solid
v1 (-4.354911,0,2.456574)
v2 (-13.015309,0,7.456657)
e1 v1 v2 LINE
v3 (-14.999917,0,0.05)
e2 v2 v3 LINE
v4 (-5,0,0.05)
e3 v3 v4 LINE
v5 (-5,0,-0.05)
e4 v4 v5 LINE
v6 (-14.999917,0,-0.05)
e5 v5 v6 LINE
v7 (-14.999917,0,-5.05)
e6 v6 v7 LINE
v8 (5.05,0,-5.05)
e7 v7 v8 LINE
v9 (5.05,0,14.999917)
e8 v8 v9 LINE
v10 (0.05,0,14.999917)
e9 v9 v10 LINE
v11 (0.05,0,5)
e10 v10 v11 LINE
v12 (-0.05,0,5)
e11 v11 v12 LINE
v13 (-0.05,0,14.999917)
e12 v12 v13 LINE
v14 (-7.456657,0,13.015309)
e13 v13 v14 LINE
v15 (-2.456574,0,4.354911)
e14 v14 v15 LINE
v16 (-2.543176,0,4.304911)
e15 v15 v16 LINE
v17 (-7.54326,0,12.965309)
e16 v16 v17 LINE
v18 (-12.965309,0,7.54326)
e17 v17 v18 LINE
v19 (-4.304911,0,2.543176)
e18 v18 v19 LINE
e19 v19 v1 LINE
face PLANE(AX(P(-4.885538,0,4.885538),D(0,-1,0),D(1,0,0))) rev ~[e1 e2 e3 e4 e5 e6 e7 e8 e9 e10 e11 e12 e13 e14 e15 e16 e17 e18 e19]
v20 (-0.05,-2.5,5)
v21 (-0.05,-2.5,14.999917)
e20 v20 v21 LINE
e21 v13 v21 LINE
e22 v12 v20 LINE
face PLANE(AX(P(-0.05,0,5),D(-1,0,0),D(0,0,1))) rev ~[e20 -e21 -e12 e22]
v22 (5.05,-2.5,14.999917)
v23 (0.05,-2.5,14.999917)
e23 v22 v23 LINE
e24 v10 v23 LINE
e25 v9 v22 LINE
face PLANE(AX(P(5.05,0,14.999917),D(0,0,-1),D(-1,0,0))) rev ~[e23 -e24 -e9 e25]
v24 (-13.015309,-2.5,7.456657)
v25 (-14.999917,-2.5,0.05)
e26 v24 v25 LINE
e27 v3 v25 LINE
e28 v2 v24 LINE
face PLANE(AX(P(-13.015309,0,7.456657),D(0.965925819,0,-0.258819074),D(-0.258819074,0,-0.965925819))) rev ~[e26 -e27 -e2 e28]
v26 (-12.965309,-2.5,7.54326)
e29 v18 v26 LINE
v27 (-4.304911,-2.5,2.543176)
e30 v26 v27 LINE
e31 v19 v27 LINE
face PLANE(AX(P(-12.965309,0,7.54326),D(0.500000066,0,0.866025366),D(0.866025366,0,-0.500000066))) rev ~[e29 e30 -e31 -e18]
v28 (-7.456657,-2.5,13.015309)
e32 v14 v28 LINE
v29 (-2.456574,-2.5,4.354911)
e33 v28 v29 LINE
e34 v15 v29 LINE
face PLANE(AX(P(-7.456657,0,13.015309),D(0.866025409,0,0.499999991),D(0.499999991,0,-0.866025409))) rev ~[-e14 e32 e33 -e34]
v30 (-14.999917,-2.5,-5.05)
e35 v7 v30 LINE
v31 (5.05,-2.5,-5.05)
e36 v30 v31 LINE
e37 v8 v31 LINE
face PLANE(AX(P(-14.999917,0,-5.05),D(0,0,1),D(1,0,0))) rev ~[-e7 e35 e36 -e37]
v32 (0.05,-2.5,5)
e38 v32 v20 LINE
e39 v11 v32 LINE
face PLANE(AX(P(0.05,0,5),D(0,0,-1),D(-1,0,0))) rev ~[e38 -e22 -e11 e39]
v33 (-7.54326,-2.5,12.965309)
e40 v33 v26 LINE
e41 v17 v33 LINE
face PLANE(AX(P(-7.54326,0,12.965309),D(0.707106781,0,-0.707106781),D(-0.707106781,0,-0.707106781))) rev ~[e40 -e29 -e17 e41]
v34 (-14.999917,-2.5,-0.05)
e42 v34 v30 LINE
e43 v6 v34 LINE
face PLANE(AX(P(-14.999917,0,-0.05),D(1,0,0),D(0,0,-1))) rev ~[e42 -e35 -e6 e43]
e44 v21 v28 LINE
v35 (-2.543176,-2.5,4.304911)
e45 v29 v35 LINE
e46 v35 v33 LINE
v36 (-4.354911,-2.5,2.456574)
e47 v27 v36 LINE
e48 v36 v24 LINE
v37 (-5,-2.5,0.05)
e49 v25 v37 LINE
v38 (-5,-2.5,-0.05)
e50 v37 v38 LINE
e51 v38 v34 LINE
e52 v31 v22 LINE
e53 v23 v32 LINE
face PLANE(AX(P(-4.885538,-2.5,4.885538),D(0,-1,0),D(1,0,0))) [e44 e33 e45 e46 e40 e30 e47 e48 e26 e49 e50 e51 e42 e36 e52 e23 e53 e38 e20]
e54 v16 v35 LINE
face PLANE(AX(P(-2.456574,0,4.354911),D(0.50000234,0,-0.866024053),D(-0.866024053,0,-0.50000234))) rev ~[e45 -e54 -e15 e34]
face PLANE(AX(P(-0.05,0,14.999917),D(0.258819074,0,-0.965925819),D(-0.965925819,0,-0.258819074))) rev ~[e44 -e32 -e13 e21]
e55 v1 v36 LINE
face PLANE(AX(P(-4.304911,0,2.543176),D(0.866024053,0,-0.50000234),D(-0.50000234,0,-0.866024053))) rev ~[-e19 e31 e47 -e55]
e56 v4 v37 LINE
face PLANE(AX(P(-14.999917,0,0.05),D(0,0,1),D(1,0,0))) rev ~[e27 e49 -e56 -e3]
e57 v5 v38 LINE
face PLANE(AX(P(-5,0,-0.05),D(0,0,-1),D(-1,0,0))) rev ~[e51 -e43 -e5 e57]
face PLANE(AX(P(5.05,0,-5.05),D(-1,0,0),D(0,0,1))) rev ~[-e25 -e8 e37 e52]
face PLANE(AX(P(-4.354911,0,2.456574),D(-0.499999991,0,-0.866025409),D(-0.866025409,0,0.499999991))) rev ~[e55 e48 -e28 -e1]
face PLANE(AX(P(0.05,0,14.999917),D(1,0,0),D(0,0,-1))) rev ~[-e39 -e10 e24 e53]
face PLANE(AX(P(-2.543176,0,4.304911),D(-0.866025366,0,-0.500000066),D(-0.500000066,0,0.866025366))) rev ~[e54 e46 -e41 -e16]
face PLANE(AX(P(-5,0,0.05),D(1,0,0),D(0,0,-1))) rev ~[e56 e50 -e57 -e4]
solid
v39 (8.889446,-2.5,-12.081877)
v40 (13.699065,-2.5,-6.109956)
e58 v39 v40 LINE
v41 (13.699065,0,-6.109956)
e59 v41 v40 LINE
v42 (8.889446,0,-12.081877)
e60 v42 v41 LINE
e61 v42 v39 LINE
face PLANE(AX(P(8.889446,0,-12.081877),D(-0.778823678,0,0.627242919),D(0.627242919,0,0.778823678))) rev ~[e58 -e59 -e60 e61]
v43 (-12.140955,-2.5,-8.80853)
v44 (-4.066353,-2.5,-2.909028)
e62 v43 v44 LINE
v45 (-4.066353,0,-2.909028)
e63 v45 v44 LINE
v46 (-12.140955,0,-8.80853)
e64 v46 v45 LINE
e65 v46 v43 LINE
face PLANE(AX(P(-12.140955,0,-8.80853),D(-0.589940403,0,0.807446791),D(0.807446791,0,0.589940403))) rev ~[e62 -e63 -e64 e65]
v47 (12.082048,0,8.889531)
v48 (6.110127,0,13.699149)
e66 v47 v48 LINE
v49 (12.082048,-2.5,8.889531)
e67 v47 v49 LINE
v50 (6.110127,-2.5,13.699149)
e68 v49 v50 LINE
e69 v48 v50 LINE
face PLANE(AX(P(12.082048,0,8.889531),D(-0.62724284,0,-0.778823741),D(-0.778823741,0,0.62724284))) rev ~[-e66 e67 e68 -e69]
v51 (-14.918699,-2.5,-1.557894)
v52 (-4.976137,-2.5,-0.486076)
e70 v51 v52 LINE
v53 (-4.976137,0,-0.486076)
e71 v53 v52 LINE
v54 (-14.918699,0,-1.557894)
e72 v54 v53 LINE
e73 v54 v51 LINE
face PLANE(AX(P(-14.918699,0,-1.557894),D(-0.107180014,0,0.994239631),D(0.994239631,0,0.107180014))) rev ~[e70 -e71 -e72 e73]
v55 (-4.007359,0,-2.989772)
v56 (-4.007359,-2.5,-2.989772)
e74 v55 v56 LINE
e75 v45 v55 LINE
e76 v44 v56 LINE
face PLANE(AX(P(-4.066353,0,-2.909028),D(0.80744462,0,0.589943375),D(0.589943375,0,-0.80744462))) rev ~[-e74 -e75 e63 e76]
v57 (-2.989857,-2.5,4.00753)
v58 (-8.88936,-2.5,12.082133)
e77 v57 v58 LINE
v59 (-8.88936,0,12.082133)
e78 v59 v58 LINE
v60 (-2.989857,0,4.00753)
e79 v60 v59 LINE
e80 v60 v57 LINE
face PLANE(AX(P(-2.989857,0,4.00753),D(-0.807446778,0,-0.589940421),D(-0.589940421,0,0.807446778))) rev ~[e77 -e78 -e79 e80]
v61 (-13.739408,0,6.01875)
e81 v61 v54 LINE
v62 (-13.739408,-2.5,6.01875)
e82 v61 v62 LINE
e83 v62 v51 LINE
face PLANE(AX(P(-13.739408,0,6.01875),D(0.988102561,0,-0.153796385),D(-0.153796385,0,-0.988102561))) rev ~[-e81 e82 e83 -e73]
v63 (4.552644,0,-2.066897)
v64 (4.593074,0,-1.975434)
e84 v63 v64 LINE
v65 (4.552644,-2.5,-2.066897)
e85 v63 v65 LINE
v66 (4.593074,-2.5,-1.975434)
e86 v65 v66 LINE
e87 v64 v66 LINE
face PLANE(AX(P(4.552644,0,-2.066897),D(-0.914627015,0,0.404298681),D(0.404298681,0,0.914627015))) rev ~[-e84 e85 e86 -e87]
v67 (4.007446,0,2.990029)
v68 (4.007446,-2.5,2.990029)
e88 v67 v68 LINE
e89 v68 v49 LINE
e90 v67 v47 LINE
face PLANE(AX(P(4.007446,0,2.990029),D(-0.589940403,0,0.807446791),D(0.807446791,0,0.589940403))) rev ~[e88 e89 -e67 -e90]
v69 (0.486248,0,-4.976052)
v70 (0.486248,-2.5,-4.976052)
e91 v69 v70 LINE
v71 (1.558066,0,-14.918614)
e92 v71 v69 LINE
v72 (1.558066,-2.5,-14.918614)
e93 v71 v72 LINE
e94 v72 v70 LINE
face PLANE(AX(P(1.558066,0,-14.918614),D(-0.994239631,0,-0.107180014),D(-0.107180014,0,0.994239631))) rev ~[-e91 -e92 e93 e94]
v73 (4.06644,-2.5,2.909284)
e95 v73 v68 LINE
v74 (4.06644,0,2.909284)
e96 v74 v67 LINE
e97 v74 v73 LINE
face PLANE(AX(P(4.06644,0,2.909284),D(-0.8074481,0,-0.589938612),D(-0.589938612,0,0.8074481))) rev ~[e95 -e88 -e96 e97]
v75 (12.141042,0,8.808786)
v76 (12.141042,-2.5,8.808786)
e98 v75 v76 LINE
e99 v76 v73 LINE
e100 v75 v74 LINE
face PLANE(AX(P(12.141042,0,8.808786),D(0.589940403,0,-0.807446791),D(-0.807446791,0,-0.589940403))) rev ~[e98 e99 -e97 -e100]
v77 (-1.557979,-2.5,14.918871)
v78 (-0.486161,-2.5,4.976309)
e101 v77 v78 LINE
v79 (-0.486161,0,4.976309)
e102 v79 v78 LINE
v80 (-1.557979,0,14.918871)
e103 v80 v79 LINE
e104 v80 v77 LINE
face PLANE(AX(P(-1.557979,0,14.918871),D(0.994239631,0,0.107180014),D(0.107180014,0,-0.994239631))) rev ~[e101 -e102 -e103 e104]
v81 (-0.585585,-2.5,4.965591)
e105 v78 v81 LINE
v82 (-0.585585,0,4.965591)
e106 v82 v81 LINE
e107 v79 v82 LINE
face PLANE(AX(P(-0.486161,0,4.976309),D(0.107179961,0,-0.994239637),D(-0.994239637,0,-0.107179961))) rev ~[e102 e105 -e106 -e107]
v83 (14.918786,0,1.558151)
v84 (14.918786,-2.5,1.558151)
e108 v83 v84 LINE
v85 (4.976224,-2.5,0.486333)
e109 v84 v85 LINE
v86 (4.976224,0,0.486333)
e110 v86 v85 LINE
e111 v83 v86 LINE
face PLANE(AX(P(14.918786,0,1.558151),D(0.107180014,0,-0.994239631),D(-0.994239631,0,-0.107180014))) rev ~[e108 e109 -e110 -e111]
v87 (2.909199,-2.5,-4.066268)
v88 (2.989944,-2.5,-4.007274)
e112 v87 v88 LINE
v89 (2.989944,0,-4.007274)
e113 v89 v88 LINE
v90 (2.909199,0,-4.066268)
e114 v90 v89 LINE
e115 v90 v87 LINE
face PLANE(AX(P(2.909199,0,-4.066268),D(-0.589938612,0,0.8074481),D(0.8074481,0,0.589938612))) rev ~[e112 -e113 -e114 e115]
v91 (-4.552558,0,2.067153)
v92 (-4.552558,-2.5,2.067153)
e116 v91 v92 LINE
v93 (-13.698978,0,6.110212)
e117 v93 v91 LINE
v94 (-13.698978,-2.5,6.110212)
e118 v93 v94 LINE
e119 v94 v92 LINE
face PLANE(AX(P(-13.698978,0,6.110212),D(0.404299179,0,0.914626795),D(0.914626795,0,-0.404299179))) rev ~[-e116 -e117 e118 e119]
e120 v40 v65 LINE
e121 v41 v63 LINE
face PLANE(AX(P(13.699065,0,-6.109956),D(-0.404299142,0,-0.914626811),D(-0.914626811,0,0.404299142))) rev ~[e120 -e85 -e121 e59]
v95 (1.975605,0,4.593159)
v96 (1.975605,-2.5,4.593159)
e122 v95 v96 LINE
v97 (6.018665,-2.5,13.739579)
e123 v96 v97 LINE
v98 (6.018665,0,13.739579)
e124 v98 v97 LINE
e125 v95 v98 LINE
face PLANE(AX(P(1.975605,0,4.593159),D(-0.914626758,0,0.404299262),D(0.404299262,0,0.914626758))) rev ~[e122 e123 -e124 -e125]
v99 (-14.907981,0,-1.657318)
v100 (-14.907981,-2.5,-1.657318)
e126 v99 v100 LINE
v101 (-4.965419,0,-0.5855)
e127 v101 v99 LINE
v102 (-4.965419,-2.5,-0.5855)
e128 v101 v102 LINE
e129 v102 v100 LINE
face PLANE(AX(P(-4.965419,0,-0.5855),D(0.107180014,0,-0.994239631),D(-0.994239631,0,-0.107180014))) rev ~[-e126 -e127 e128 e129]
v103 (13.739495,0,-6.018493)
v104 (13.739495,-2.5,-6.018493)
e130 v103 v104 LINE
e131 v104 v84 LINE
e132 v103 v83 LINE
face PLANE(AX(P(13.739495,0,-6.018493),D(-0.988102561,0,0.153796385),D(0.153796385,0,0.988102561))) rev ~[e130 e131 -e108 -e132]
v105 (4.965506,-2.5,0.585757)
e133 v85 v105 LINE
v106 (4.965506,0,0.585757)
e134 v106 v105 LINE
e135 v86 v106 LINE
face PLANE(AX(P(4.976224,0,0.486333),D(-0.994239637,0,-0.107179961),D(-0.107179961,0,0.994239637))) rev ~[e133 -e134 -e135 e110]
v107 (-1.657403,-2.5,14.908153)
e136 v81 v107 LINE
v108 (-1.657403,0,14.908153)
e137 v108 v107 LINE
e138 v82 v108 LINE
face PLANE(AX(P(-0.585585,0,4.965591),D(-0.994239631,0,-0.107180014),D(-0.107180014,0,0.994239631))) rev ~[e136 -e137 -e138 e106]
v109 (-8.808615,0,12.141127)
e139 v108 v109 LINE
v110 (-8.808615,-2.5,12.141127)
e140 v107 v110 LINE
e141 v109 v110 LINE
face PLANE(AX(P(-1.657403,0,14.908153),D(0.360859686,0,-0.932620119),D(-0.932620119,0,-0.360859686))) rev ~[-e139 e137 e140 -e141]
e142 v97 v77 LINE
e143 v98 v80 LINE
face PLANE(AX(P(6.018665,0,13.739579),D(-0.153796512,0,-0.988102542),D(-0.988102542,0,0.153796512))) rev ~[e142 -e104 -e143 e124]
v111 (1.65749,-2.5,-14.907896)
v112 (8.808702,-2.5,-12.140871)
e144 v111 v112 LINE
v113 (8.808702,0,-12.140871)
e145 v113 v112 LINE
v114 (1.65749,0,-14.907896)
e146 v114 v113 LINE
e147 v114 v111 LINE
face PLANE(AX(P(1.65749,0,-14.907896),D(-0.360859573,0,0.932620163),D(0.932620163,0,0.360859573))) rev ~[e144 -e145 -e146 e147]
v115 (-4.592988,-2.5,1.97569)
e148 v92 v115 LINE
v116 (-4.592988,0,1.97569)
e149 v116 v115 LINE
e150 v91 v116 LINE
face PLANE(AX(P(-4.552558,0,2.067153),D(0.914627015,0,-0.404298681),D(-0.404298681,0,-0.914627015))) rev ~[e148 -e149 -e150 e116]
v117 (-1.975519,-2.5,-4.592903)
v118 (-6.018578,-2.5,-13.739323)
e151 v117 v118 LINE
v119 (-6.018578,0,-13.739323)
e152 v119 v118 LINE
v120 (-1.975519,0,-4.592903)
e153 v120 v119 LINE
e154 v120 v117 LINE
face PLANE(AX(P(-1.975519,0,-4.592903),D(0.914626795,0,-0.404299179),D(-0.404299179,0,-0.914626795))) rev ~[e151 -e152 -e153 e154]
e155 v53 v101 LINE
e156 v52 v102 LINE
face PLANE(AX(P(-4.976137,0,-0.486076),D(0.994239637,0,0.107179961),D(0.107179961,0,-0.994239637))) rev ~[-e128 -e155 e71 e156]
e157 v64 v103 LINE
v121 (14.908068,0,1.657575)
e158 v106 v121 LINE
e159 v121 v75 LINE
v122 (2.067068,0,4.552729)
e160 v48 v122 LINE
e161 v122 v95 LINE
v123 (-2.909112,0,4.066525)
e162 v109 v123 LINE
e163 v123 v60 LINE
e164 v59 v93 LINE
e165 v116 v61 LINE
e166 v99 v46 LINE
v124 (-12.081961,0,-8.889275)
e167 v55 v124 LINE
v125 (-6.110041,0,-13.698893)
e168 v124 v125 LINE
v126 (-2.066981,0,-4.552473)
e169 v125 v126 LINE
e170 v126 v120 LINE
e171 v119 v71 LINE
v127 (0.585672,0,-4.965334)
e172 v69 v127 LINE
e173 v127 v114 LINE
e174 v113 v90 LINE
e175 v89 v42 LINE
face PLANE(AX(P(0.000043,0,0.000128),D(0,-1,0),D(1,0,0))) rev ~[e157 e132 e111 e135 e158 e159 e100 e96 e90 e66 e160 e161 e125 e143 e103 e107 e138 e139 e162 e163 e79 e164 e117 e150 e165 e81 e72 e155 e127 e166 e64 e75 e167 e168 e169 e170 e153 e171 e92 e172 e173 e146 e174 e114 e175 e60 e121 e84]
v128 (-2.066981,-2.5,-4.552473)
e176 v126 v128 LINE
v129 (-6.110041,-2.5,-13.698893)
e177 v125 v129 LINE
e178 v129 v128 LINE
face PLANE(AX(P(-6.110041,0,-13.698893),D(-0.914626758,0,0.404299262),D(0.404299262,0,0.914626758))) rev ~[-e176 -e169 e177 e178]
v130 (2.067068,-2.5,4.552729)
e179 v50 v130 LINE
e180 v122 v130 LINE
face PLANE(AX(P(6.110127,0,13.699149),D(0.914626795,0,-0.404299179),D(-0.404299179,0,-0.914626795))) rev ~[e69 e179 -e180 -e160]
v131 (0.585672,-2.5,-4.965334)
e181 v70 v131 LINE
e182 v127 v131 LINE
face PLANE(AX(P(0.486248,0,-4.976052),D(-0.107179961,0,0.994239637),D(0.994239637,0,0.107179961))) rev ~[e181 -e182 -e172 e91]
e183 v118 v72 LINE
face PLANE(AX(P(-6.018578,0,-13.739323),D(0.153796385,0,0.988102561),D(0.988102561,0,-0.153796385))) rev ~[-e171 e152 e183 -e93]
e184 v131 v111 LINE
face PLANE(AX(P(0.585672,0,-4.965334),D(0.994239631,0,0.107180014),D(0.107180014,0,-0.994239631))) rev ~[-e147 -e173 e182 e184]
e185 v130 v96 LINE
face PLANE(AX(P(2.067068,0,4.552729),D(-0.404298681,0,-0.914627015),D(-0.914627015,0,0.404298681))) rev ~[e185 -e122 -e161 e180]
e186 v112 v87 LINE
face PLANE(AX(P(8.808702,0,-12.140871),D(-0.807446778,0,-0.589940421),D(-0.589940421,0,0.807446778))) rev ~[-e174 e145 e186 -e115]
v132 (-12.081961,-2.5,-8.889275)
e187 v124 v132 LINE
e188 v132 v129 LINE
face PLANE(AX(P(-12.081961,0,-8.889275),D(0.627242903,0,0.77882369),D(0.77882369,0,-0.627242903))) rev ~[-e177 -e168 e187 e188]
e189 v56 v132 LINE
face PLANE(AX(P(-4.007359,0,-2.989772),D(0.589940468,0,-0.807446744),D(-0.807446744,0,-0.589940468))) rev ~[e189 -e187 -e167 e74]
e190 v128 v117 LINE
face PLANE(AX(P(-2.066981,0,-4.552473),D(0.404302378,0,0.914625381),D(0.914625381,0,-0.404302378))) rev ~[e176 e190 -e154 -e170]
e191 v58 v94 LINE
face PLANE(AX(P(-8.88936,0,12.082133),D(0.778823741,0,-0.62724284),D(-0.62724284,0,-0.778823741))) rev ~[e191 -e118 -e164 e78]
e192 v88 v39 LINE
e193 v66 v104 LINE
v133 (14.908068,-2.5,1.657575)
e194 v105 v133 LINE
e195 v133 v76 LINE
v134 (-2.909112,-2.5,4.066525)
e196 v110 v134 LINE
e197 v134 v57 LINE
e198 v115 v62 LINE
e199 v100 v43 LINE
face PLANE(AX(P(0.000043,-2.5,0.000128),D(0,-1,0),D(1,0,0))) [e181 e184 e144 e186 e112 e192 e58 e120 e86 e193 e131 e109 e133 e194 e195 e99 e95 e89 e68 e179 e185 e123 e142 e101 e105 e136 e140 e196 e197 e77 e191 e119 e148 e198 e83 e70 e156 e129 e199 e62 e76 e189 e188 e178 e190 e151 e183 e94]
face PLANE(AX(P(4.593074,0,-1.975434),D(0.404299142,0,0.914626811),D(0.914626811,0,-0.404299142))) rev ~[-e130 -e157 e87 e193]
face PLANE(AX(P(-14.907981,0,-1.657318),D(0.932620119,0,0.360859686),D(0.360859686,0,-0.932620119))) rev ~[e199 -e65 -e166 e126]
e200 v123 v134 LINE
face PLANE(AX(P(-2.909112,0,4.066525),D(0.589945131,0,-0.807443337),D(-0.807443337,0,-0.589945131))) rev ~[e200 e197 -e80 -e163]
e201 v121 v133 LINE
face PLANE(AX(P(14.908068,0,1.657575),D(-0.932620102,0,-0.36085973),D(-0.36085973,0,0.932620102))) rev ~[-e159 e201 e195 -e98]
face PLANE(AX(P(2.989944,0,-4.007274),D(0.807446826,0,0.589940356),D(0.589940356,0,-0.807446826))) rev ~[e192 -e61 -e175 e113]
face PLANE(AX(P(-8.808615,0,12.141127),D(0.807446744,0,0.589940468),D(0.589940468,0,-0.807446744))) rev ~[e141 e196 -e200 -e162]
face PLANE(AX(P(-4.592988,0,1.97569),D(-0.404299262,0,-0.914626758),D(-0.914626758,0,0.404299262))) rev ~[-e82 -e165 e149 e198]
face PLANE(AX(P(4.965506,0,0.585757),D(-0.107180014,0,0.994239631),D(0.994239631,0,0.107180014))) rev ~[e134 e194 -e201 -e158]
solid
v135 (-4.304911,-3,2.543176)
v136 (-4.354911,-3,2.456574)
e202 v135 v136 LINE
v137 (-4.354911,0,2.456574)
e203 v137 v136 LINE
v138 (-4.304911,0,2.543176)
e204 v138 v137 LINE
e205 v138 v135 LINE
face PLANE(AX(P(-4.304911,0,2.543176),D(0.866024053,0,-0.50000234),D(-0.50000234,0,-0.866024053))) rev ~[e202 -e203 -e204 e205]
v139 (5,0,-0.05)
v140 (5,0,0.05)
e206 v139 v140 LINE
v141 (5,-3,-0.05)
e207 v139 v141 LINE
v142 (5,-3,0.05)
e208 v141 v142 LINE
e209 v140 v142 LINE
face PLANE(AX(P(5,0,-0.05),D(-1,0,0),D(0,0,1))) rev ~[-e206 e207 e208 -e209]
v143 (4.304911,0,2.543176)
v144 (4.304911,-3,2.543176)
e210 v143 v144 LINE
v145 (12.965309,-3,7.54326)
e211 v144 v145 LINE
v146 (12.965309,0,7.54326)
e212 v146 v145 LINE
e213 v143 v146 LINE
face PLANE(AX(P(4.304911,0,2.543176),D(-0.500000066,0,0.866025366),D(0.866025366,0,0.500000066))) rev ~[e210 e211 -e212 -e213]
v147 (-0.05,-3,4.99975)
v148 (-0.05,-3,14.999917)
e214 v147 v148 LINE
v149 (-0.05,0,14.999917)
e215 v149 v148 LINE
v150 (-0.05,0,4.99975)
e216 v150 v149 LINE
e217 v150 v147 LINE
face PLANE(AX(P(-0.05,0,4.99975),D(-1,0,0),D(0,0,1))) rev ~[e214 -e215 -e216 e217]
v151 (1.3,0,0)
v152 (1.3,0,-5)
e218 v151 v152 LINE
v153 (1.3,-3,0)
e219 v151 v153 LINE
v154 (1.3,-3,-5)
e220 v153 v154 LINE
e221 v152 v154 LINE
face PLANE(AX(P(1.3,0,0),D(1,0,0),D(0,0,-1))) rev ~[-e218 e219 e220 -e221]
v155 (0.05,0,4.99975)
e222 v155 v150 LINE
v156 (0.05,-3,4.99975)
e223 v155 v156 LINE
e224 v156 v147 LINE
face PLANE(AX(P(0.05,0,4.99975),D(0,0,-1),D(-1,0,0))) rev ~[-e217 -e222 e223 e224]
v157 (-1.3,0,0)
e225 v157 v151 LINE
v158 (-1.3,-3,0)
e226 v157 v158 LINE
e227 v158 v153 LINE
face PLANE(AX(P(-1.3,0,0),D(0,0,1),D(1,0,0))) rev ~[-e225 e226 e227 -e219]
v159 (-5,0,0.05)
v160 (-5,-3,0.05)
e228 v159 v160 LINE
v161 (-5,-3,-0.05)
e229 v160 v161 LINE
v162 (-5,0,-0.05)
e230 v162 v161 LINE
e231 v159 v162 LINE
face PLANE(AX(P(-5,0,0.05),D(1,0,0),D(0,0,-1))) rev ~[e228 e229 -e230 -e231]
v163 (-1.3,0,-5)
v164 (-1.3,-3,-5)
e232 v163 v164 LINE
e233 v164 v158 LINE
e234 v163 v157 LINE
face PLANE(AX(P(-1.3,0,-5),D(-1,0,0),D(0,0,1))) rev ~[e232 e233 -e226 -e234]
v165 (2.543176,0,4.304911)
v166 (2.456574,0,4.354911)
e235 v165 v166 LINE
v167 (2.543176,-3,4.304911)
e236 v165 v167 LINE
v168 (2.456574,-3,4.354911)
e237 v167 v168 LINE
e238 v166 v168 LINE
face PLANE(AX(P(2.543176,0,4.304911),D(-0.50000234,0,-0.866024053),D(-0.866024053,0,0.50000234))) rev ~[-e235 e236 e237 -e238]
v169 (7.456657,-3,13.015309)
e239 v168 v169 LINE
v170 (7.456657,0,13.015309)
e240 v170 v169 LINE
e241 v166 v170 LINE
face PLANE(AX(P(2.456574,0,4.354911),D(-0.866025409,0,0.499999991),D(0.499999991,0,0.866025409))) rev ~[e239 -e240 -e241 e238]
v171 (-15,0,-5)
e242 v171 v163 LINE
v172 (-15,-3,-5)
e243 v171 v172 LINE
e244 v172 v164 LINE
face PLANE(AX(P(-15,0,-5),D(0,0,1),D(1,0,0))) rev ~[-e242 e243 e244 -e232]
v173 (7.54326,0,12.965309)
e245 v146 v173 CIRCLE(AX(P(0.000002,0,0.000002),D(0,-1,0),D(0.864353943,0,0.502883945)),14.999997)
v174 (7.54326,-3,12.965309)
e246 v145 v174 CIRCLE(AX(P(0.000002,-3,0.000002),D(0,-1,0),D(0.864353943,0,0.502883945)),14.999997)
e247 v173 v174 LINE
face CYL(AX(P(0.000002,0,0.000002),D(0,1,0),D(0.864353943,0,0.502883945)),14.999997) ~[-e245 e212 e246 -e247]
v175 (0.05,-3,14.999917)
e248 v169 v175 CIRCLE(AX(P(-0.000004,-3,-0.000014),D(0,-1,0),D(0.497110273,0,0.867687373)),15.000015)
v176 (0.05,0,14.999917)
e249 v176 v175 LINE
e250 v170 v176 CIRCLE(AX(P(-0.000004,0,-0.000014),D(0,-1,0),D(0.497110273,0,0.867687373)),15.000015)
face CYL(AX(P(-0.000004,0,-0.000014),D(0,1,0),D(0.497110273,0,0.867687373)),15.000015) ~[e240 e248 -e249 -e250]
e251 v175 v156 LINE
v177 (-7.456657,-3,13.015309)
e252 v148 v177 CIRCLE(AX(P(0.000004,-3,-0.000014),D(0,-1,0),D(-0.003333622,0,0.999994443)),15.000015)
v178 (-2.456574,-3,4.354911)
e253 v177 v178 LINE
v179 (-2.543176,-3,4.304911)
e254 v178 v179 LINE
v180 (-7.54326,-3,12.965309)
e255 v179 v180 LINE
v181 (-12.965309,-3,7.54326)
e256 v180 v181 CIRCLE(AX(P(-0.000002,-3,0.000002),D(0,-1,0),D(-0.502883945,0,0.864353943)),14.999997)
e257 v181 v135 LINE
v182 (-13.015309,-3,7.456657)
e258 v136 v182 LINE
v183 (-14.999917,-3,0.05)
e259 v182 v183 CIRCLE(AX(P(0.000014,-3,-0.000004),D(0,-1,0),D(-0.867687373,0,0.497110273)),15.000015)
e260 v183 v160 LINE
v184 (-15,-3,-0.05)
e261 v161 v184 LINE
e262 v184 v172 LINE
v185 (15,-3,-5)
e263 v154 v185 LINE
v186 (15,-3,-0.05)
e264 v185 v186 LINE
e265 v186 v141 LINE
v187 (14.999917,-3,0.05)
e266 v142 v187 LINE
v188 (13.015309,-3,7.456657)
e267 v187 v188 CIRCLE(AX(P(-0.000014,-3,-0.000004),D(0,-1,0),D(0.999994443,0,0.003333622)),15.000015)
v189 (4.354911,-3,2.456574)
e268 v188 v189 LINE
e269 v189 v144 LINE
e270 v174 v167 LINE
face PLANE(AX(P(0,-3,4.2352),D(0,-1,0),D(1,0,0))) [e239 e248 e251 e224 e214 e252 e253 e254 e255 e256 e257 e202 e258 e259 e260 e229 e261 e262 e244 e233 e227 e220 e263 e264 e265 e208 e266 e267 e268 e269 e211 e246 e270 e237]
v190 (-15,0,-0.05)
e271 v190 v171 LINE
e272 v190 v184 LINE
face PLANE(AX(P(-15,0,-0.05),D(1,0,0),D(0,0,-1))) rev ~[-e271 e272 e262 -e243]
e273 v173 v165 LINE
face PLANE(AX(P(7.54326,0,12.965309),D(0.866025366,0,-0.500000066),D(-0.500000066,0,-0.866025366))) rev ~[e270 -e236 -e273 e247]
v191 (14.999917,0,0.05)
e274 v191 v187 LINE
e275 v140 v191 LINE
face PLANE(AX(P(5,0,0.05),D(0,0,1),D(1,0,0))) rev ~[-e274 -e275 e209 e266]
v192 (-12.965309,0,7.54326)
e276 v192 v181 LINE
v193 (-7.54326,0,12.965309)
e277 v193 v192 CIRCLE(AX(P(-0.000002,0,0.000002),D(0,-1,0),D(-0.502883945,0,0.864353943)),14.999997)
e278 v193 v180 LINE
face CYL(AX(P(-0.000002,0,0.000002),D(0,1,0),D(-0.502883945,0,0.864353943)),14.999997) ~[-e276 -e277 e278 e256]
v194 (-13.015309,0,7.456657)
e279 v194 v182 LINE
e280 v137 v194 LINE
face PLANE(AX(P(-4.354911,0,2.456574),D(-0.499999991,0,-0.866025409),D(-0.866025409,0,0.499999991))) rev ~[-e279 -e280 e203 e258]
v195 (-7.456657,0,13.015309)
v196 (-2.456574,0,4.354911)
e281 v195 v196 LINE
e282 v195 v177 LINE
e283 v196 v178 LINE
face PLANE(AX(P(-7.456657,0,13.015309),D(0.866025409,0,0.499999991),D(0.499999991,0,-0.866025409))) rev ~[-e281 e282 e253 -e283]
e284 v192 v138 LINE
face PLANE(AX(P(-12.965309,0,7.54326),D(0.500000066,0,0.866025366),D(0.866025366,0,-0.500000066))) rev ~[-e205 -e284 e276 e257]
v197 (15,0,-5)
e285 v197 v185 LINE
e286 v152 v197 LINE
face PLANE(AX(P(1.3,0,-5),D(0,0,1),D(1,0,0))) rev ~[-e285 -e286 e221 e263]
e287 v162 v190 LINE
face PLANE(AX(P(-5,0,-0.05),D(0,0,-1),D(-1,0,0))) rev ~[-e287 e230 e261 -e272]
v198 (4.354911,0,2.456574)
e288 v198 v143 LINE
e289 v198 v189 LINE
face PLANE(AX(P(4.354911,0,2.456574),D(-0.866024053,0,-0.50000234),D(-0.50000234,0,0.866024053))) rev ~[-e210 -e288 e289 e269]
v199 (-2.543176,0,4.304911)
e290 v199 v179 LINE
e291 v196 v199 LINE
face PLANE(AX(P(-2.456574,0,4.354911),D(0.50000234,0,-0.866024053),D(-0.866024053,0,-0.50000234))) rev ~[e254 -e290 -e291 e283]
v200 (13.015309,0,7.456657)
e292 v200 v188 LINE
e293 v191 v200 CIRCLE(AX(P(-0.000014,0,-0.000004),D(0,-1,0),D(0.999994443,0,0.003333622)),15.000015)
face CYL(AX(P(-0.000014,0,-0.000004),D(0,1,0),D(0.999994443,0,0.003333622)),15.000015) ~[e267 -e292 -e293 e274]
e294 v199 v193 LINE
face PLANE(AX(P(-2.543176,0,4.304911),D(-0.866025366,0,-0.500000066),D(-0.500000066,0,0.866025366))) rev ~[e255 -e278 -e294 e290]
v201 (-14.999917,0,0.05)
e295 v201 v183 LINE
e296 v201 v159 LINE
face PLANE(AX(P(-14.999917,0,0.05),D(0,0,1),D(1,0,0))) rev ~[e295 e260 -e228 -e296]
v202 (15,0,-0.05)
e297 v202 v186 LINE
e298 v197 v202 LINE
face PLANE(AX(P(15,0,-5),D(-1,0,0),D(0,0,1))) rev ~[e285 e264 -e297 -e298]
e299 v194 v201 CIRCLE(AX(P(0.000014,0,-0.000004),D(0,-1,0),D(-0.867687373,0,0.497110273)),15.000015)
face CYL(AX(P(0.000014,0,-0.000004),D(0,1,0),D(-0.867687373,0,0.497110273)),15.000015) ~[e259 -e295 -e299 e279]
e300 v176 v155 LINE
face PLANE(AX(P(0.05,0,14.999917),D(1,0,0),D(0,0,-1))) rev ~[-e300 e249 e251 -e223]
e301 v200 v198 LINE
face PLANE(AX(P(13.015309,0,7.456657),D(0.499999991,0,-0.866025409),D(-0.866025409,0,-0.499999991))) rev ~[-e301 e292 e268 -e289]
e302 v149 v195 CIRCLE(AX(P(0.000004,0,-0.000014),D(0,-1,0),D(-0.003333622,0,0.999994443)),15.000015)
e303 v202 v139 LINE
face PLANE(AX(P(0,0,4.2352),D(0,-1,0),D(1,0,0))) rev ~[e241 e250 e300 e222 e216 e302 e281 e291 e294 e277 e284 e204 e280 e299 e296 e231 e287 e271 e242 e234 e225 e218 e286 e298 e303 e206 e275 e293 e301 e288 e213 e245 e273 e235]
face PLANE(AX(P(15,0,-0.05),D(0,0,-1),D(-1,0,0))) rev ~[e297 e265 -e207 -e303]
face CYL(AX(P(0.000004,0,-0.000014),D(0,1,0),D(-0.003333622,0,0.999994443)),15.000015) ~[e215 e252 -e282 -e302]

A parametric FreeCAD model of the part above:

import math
import FreeCAD as App
import Part
import Sketcher
Q = App.Units.Quantity

doc = App.newDocument("Part")
params = doc.addObject("Spreadsheet::Sheet", "Params")
for row, (alias, value) in enumerate([
    ("sketch1_width", "10 mm"),
    ("sketch1_height", "5 mm"),
    ("sketch1_width2", "13.7 mm"),
    ("sketch1_width3", "2.6 mm"),
    ("sketch1_width4", "0.1 mm"),
    ("pad1_length", "3 mm"),
    ("sketch2_length", "0.100001 mm"),
    ("pad2_length", "2.5 mm"),
    ("sketch3_width", "5 mm"),
    ("sketch3_width2", "0.1 mm"),
    ("sketch3_length", "0.1 mm"),
    ("pad3_length", "2.5 mm"),
], start=1):
    params.set(f"A{row}", alias)
    params.set(f"B{row}", "=" + value)
    params.setAlias(f"B{row}", alias)

body = doc.addObject("PartDesign::Body", "Body")

# Sketch on XZ plane
sketch1 = body.newObject("Sketcher::SketchObject", "Sketch")
sketch1.AttachmentSupport = (doc.getObject("XZ_Plane"), [""])
sketch1.MapMode = "FlatFace"
sketch1.addGeometry([
    Part.LineSegment(App.Vector(-0.05, 4.99975, 0), App.Vector(-0.05, 14.999917, 0)),  # 0
    Part.ArcOfCircle(Part.Circle(App.Vector(0.000004, -0.000014, 0), App.Vector(0, 0, 1), 15.000015), math.radians(90.191003), math.radians(119.809001)),  # 1
    Part.LineSegment(App.Vector(-7.456657, 13.015309, 0), App.Vector(-2.456574, 4.354911, 0)),  # 2
    Part.LineSegment(App.Vector(-2.456574, 4.354911, 0), App.Vector(-2.543176, 4.304911, 0)),  # 3
    Part.LineSegment(App.Vector(-2.543176, 4.304911, 0), App.Vector(-7.54326, 12.965309, 0)),  # 4
    Part.ArcOfCircle(Part.Circle(App.Vector(-0.000002, 0.000002, 0), App.Vector(0, 0, 1), 14.999997), math.radians(120.190984), math.radians(149.809016)),  # 5
    Part.LineSegment(App.Vector(-12.965309, 7.54326, 0), App.Vector(-4.304911, 2.543176, 0)),  # 6
    Part.LineSegment(App.Vector(-4.304911, 2.543176, 0), App.Vector(-4.354911, 2.456574, 0)),  # 7
    Part.LineSegment(App.Vector(-4.354911, 2.456574, 0), App.Vector(-13.015309, 7.456657, 0)),  # 8
    Part.ArcOfCircle(Part.Circle(App.Vector(0.000014, -0.000004, 0), App.Vector(0, 0, 1), 15.000015), math.radians(150.190999), math.radians(179.808997)),  # 9
    Part.LineSegment(App.Vector(-14.999917, 0.05, 0), App.Vector(-5, 0.05, 0)),  # 10
    Part.LineSegment(App.Vector(-5, 0.05, 0), App.Vector(-5, -0.05, 0)),  # 11
    Part.LineSegment(App.Vector(-5, -0.05, 0), App.Vector(-15, -0.05, 0)),  # 12
    Part.LineSegment(App.Vector(-15, -0.05, 0), App.Vector(-15, -5, 0)),  # 13
    Part.LineSegment(App.Vector(-15, -5, 0), App.Vector(-1.3, -5, 0)),  # 14
    Part.LineSegment(App.Vector(-1.3, -5, 0), App.Vector(-1.3, 0, 0)),  # 15
    Part.LineSegment(App.Vector(-1.3, 0, 0), App.Vector(1.3, 0, 0)),  # 16
    Part.LineSegment(App.Vector(1.3, 0, 0), App.Vector(1.3, -5, 0)),  # 17
    Part.LineSegment(App.Vector(1.3, -5, 0), App.Vector(15, -5, 0)),  # 18
    Part.LineSegment(App.Vector(15, -5, 0), App.Vector(15, -0.05, 0)),  # 19
    Part.LineSegment(App.Vector(15, -0.05, 0), App.Vector(5, -0.05, 0)),  # 20
    Part.LineSegment(App.Vector(5, -0.05, 0), App.Vector(5, 0.05, 0)),  # 21
    Part.LineSegment(App.Vector(5, 0.05, 0), App.Vector(14.999917, 0.05, 0)),  # 22
    Part.ArcOfCircle(Part.Circle(App.Vector(-0.000014, -0.000004, 0), App.Vector(0, 0, 1), 15.000015), math.radians(0.191003), math.radians(29.809001)),  # 23
    Part.LineSegment(App.Vector(13.015309, 7.456657, 0), App.Vector(4.354911, 2.456574, 0)),  # 24
    Part.LineSegment(App.Vector(4.354911, 2.456574, 0), App.Vector(4.304911, 2.543176, 0)),  # 25
    Part.LineSegment(App.Vector(4.304911, 2.543176, 0), App.Vector(12.965309, 7.54326, 0)),  # 26
    Part.ArcOfCircle(Part.Circle(App.Vector(0.000002, 0.000002, 0), App.Vector(0, 0, 1), 14.999997), math.radians(30.190984), math.radians(59.809016)),  # 27
    Part.LineSegment(App.Vector(7.54326, 12.965309, 0), App.Vector(2.543176, 4.304911, 0)),  # 28
    Part.LineSegment(App.Vector(2.543176, 4.304911, 0), App.Vector(2.456574, 4.354911, 0)),  # 29
    Part.LineSegment(App.Vector(2.456574, 4.354911, 0), App.Vector(7.456657, 13.015309, 0)),  # 30
    Part.ArcOfCircle(Part.Circle(App.Vector(-0.000004, -0.000014, 0), App.Vector(0, 0, 1), 15.000015), math.radians(60.190999), math.radians(89.808997)),  # 31
    Part.LineSegment(App.Vector(0.05, 14.999917, 0), App.Vector(0.05, 4.99975, 0)),  # 32
    Part.LineSegment(App.Vector(0.05, 4.99975, 0), App.Vector(-0.05, 4.99975, 0)),  # 33
], False)
sketch1.addConstraint([
    Sketcher.Constraint("Coincident", 0, 2, 1, 1),
    Sketcher.Constraint("Coincident", 1, 2, 2, 1),
    Sketcher.Constraint("Coincident", 2, 2, 3, 1),
    Sketcher.Constraint("Coincident", 3, 2, 4, 1),
    Sketcher.Constraint("Coincident", 4, 2, 5, 1),
    Sketcher.Constraint("Coincident", 5, 2, 6, 1),
    Sketcher.Constraint("Coincident", 6, 2, 7, 1),
    Sketcher.Constraint("Coincident", 7, 2, 8, 1),
    Sketcher.Constraint("Coincident", 8, 2, 9, 1),
    Sketcher.Constraint("Coincident", 9, 2, 10, 1),
    Sketcher.Constraint("Coincident", 10, 2, 11, 1),
    Sketcher.Constraint("Coincident", 11, 2, 12, 1),
    Sketcher.Constraint("Coincident", 12, 2, 13, 1),
    Sketcher.Constraint("Coincident", 13, 2, 14, 1),
    Sketcher.Constraint("Coincident", 14, 2, 15, 1),
    Sketcher.Constraint("Coincident", 15, 2, 16, 1),
    Sketcher.Constraint("Coincident", 16, 2, 17, 1),
    Sketcher.Constraint("Coincident", 17, 2, 18, 1),
    Sketcher.Constraint("Coincident", 18, 2, 19, 1),
    Sketcher.Constraint("Coincident", 19, 2, 20, 1),
    Sketcher.Constraint("Coincident", 20, 2, 21, 1),
    Sketcher.Constraint("Coincident", 21, 2, 22, 1),
    Sketcher.Constraint("Coincident", 22, 2, 23, 1),
    Sketcher.Constraint("Coincident", 23, 2, 24, 1),
    Sketcher.Constraint("Coincident", 24, 2, 25, 1),
    Sketcher.Constraint("Coincident", 25, 2, 26, 1),
    Sketcher.Constraint("Coincident", 26, 2, 27, 1),
    Sketcher.Constraint("Coincident", 27, 2, 28, 1),
    Sketcher.Constraint("Coincident", 28, 2, 29, 1),
    Sketcher.Constraint("Coincident", 29, 2, 30, 1),
    Sketcher.Constraint("Coincident", 30, 2, 31, 1),
    Sketcher.Constraint("Coincident", 31, 2, 32, 1),
    Sketcher.Constraint("Coincident", 32, 2, 33, 1),
    Sketcher.Constraint("Coincident", 33, 2, 0, 1),
    Sketcher.Constraint("Vertical", 0),
    Sketcher.Constraint("Horizontal", 10),
    Sketcher.Constraint("Vertical", 11),
    Sketcher.Constraint("Horizontal", 12),
    Sketcher.Constraint("Vertical", 13),
    Sketcher.Constraint("Horizontal", 14),
    Sketcher.Constraint("Vertical", 15),
    Sketcher.Constraint("Horizontal", 16),
    Sketcher.Constraint("Vertical", 17),
    Sketcher.Constraint("Horizontal", 18),
    Sketcher.Constraint("Vertical", 19),
    Sketcher.Constraint("Horizontal", 20),
    Sketcher.Constraint("Vertical", 21),
    Sketcher.Constraint("Horizontal", 22),
    Sketcher.Constraint("Vertical", 32),
    Sketcher.Constraint("Horizontal", 33),
    Sketcher.Constraint("Coincident", 5, 3, -1, 1),
    Sketcher.Constraint("Coincident", 27, 3, -1, 1),
    Sketcher.Constraint("Coincident", 31, 3, 1, 3),
    Sketcher.Constraint("Equal", 1, 9),
    Sketcher.Constraint("Equal", 9, 23),
    Sketcher.Constraint("Equal", 5, 27),
    Sketcher.Constraint("Equal", 23, 31),
    Sketcher.Constraint("Symmetric", 9, 3, 23, 3, -1, 1),
    Sketcher.Constraint("Symmetric", 15, 2, 16, 2, -1, 1),
    Sketcher.Constraint("Symmetric", 10, 2, 20, 2, -1, 1),
    Sketcher.Constraint("Symmetric", 13, 2, 18, 2, -2),
    Sketcher.Constraint("Symmetric", 9, 2, 22, 2, -2),
    Sketcher.Constraint("Symmetric", 7, 2, 24, 2, -2),
    Sketcher.Constraint("Symmetric", 6, 2, 25, 2, -2),
    Sketcher.Constraint("Symmetric", 3, 2, 28, 2, -2),
    Sketcher.Constraint("Symmetric", 2, 2, 29, 2, -2),
    Sketcher.Constraint("Symmetric", 1, 2, 30, 2, -2),
    Sketcher.Constraint("Parallel", 2, 4),
    Sketcher.Constraint("Parallel", 6, 8),
    Sketcher.Constraint("Perpendicular", 4, 24),
    Sketcher.Constraint("Perpendicular", 3, 25),
    Sketcher.Constraint("Parallel", 24, 26),
    Sketcher.Constraint("Perpendicular", 8, 28),
    Sketcher.Constraint("Parallel", 28, 30),
    Sketcher.Constraint("Horizontal", 12, 2, 19, 2),
    Sketcher.Constraint("Equal", 33, 11),
    Sketcher.Constraint("Equal", 2, 4),
    Sketcher.Constraint("Equal", 4, 6),
    Sketcher.Constraint("Equal", 3, 7),
    Sketcher.Constraint("Equal", 6, 8),
    Sketcher.Constraint("DistanceX", 12, 2, 12, 1, 10.0),
    Sketcher.Constraint("DistanceY", 15, 1, 15, 2, 5.0),
    Sketcher.Constraint("Angle", 2, Q("-60.000001 deg")),
    Sketcher.Constraint("DistanceX", 14, 1, 14, 2, 13.7),
    Sketcher.Constraint("DistanceX", 16, 1, 16, 2, 2.6),
    Sketcher.Constraint("DistanceX", 33, 2, 33, 1, 0.1),
    Sketcher.Constraint("Distance", 3, 0.1),
    Sketcher.Constraint("DistanceX", 0, 2, -1, 1, 0.05),
    Sketcher.Constraint("DistanceY", 3, 2, 2, 2, 0.05),
    Sketcher.Constraint("Radius", 1, 15.000015),
    Sketcher.Constraint("Radius", 5, 14.999997),
    Sketcher.Constraint("DistanceY", 3, 2, 4, 2, 8.660398),
    Sketcher.Constraint("DistanceY", 0, 1, 0, 2, 10.000167),
    Sketcher.Constraint("DistanceY", -1, 1, 1, 2, 13.015309),
    Sketcher.Constraint("DistanceX", 5, 2, -1, 1, 12.965309),
])
sketch1.setExpression("Constraints[80]", "Params.sketch1_width")
sketch1.setExpression("Constraints[81]", "Params.sketch1_height")
sketch1.setExpression("Constraints[83]", "Params.sketch1_width2")
sketch1.setExpression("Constraints[84]", "Params.sketch1_width3")
sketch1.setExpression("Constraints[85]", "Params.sketch1_width4")
pad1 = body.newObject("PartDesign::Pad", "Pad")
pad1.Profile = sketch1
pad1.setExpression("Length", "Params.pad1_length")
body2 = doc.addObject("PartDesign::Body", "Body001")

# Sketch on XZ plane
sketch2 = body2.newObject("Sketcher::SketchObject", "Sketch001")
sketch2.AttachmentSupport = (doc.getObject("XZ_Plane001"), [""])
sketch2.MapMode = "FlatFace"
sketch2.addGeometry([
    Part.LineSegment(App.Vector(-0.59, 4.97, 0), App.Vector(-1.66, 14.91, 0)),  # 0
    Part.LineSegment(App.Vector(-1.66, 14.91, 0), App.Vector(-8.81, 12.14, 0)),  # 1
    Part.LineSegment(App.Vector(-8.81, 12.14, 0), App.Vector(-2.91, 4.07, 0)),  # 2
    Part.LineSegment(App.Vector(-2.91, 4.07, 0), App.Vector(-2.99, 4.01, 0)),  # 3
    Part.LineSegment(App.Vector(-2.99, 4.01, 0), App.Vector(-8.89, 12.08, 0)),  # 4
    Part.LineSegment(App.Vector(-8.89, 12.08, 0), App.Vector(-13.7, 6.11, 0)),  # 5
    Part.LineSegment(App.Vector(-13.7, 6.11, 0), App.Vector(-4.55, 2.07, 0)),  # 6
    Part.LineSegment(App.Vector(-4.55, 2.07, 0), App.Vector(-4.59, 1.98, 0)),  # 7
    Part.LineSegment(App.Vector(-4.59, 1.98, 0), App.Vector(-13.74, 6.02, 0)),  # 8
    Part.LineSegment(App.Vector(-13.74, 6.02, 0), App.Vector(-14.92, -1.56, 0)),  # 9
    Part.LineSegment(App.Vector(-14.92, -1.56, 0), App.Vector(-4.98, -0.49, 0)),  # 10
    Part.LineSegment(App.Vector(-4.98, -0.49, 0), App.Vector(-4.97, -0.59, 0)),  # 11
    Part.LineSegment(App.Vector(-4.97, -0.59, 0), App.Vector(-14.91, -1.66, 0)),  # 12
    Part.LineSegment(App.Vector(-14.91, -1.66, 0), App.Vector(-12.14, -8.81, 0)),  # 13
    Part.LineSegment(App.Vector(-12.14, -8.81, 0), App.Vector(-4.07, -2.91, 0)),  # 14
    Part.LineSegment(App.Vector(-4.07, -2.91, 0), App.Vector(-4.01, -2.99, 0)),  # 15
    Part.LineSegment(App.Vector(-4.01, -2.99, 0), App.Vector(-12.08, -8.89, 0)),  # 16
    Part.LineSegment(App.Vector(-12.08, -8.89, 0), App.Vector(-6.11, -13.7, 0)),  # 17
    Part.LineSegment(App.Vector(-6.11, -13.7, 0), App.Vector(-2.07, -4.55, 0)),  # 18
    Part.LineSegment(App.Vector(-2.07, -4.55, 0), App.Vector(-1.98, -4.59, 0)),  # 19
    Part.LineSegment(App.Vector(-1.98, -4.59, 0), App.Vector(-6.02, -13.74, 0)),  # 20
    Part.LineSegment(App.Vector(-6.02, -13.74, 0), App.Vector(1.56, -14.92, 0)),  # 21
    Part.LineSegment(App.Vector(1.56, -14.92, 0), App.Vector(0.49, -4.98, 0)),  # 22
    Part.LineSegment(App.Vector(0.49, -4.98, 0), App.Vector(0.59, -4.97, 0)),  # 23
    Part.LineSegment(App.Vector(0.59, -4.97, 0), App.Vector(1.66, -14.91, 0)),  # 24
    Part.LineSegment(App.Vector(1.66, -14.91, 0), App.Vector(8.81, -12.14, 0)),  # 25
    Part.LineSegment(App.Vector(8.81, -12.14, 0), App.Vector(2.91, -4.07, 0)),  # 26
    Part.LineSegment(App.Vector(2.91, -4.07, 0), App.Vector(2.99, -4.01, 0)),  # 27
    Part.LineSegment(App.Vector(2.99, -4.01, 0), App.Vector(8.89, -12.08, 0)),  # 28
    Part.LineSegment(App.Vector(8.89, -12.08, 0), App.Vector(13.7, -6.11, 0)),  # 29
    Part.LineSegment(App.Vector(13.7, -6.11, 0), App.Vector(4.55, -2.07, 0)),  # 30
    Part.LineSegment(App.Vector(4.55, -2.07, 0), App.Vector(4.59, -1.98, 0)),  # 31
    Part.LineSegment(App.Vector(4.59, -1.98, 0), App.Vector(13.74, -6.02, 0)),  # 32
    Part.LineSegment(App.Vector(13.74, -6.02, 0), App.Vector(14.92, 1.56, 0)),  # 33
    Part.LineSegment(App.Vector(14.92, 1.56, 0), App.Vector(4.98, 0.49, 0)),  # 34
    Part.LineSegment(App.Vector(4.98, 0.49, 0), App.Vector(4.97, 0.59, 0)),  # 35
    Part.LineSegment(App.Vector(4.97, 0.59, 0), App.Vector(14.91, 1.66, 0)),  # 36
    Part.LineSegment(App.Vector(14.91, 1.66, 0), App.Vector(12.14, 8.81, 0)),  # 37
    Part.LineSegment(App.Vector(12.14, 8.81, 0), App.Vector(4.07, 2.91, 0)),  # 38
    Part.LineSegment(App.Vector(4.07, 2.91, 0), App.Vector(4.01, 2.99, 0)),  # 39
    Part.LineSegment(App.Vector(4.01, 2.99, 0), App.Vector(12.08, 8.89, 0)),  # 40
    Part.LineSegment(App.Vector(12.08, 8.89, 0), App.Vector(6.11, 13.7, 0)),  # 41
    Part.LineSegment(App.Vector(6.11, 13.7, 0), App.Vector(2.07, 4.55, 0)),  # 42
    Part.LineSegment(App.Vector(2.07, 4.55, 0), App.Vector(1.98, 4.59, 0)),  # 43
    Part.LineSegment(App.Vector(1.98, 4.59, 0), App.Vector(6.02, 13.74, 0)),  # 44
    Part.LineSegment(App.Vector(6.02, 13.74, 0), App.Vector(-1.56, 14.92, 0)),  # 45
    Part.LineSegment(App.Vector(-1.56, 14.92, 0), App.Vector(-0.49, 4.98, 0)),  # 46
    Part.LineSegment(App.Vector(-0.49, 4.98, 0), App.Vector(-0.59, 4.97, 0)),  # 47
], False)
sketch2.addConstraint([
    Sketcher.Constraint("Coincident", 0, 2, 1, 1),
    Sketcher.Constraint("Coincident", 1, 2, 2, 1),
    Sketcher.Constraint("Coincident", 2, 2, 3, 1),
    Sketcher.Constraint("Coincident", 3, 2, 4, 1),
    Sketcher.Constraint("Coincident", 4, 2, 5, 1),
    Sketcher.Constraint("Coincident", 5, 2, 6, 1),
    Sketcher.Constraint("Coincident", 6, 2, 7, 1),
    Sketcher.Constraint("Coincident", 7, 2, 8, 1),
    Sketcher.Constraint("Coincident", 8, 2, 9, 1),
    Sketcher.Constraint("Coincident", 9, 2, 10, 1),
    Sketcher.Constraint("Coincident", 10, 2, 11, 1),
    Sketcher.Constraint("Coincident", 11, 2, 12, 1),
    Sketcher.Constraint("Coincident", 12, 2, 13, 1),
    Sketcher.Constraint("Coincident", 13, 2, 14, 1),
    Sketcher.Constraint("Coincident", 14, 2, 15, 1),
    Sketcher.Constraint("Coincident", 15, 2, 16, 1),
    Sketcher.Constraint("Coincident", 16, 2, 17, 1),
    Sketcher.Constraint("Coincident", 17, 2, 18, 1),
    Sketcher.Constraint("Coincident", 18, 2, 19, 1),
    Sketcher.Constraint("Coincident", 19, 2, 20, 1),
    Sketcher.Constraint("Coincident", 20, 2, 21, 1),
    Sketcher.Constraint("Coincident", 21, 2, 22, 1),
    Sketcher.Constraint("Coincident", 22, 2, 23, 1),
    Sketcher.Constraint("Coincident", 23, 2, 24, 1),
    Sketcher.Constraint("Coincident", 24, 2, 25, 1),
    Sketcher.Constraint("Coincident", 25, 2, 26, 1),
    Sketcher.Constraint("Coincident", 26, 2, 27, 1),
    Sketcher.Constraint("Coincident", 27, 2, 28, 1),
    Sketcher.Constraint("Coincident", 28, 2, 29, 1),
    Sketcher.Constraint("Coincident", 29, 2, 30, 1),
    Sketcher.Constraint("Coincident", 30, 2, 31, 1),
    Sketcher.Constraint("Coincident", 31, 2, 32, 1),
    Sketcher.Constraint("Coincident", 32, 2, 33, 1),
    Sketcher.Constraint("Coincident", 33, 2, 34, 1),
    Sketcher.Constraint("Coincident", 34, 2, 35, 1),
    Sketcher.Constraint("Coincident", 35, 2, 36, 1),
    Sketcher.Constraint("Coincident", 36, 2, 37, 1),
    Sketcher.Constraint("Coincident", 37, 2, 38, 1),
    Sketcher.Constraint("Coincident", 38, 2, 39, 1),
    Sketcher.Constraint("Coincident", 39, 2, 40, 1),
    Sketcher.Constraint("Coincident", 40, 2, 41, 1),
    Sketcher.Constraint("Coincident", 41, 2, 42, 1),
    Sketcher.Constraint("Coincident", 42, 2, 43, 1),
    Sketcher.Constraint("Coincident", 43, 2, 44, 1),
    Sketcher.Constraint("Coincident", 44, 2, 45, 1),
    Sketcher.Constraint("Coincident", 45, 2, 46, 1),
    Sketcher.Constraint("Coincident", 46, 2, 47, 1),
    Sketcher.Constraint("Coincident", 47, 2, 0, 1),
    Sketcher.Constraint("Parallel", 2, 4),
    Sketcher.Constraint("Perpendicular", 6, 7),
    Sketcher.Constraint("Perpendicular", 7, 8),
    Sketcher.Constraint("Perpendicular", 0, 10),
    Sketcher.Constraint("Perpendicular", 10, 11),
    Sketcher.Constraint("Perpendicular", 11, 12),
    Sketcher.Constraint("Perpendicular", 1, 13),
    Sketcher.Constraint("Perpendicular", 4, 14),
    Sketcher.Constraint("Parallel", 14, 16),
    Sketcher.Constraint("Perpendicular", 5, 17),
    Sketcher.Constraint("Perpendicular", 8, 18),
    Sketcher.Constraint("Parallel", 18, 20),
    Sketcher.Constraint("Perpendicular", 9, 21),
    Sketcher.Constraint("Perpendicular", 12, 22),
    Sketcher.Constraint("Perpendicular", 22, 23),
    Sketcher.Constraint("Perpendicular", 23, 24),
    Sketcher.Constraint("Perpendicular", 13, 25),
    Sketcher.Constraint("Perpendicular", 16, 26),
    Sketcher.Constraint("Parallel", 26, 28),
    Sketcher.Constraint("Perpendicular", 17, 29),
    Sketcher.Constraint("Perpendicular", 20, 30),
    Sketcher.Constraint("Perpendicular", 30, 31),
    Sketcher.Constraint("Perpendicular", 31, 32),
    Sketcher.Constraint("Perpendicular", 21, 33),
    Sketcher.Constraint("Perpendicular", 24, 34),
    Sketcher.Constraint("Perpendicular", 34, 35),
    Sketcher.Constraint("Perpendicular", 35, 36),
    Sketcher.Constraint("Perpendicular", 25, 37),
    Sketcher.Constraint("Perpendicular", 28, 38),
    Sketcher.Constraint("Perpendicular", 27, 39),
    Sketcher.Constraint("Parallel", 38, 40),
    Sketcher.Constraint("Perpendicular", 29, 41),
    Sketcher.Constraint("Perpendicular", 32, 42),
    Sketcher.Constraint("Perpendicular", 42, 43),
    Sketcher.Constraint("Perpendicular", 43, 44),
    Sketcher.Constraint("Perpendicular", 33, 45),
    Sketcher.Constraint("Perpendicular", 36, 46),
    Sketcher.Constraint("Perpendicular", 46, 47),
    Sketcher.Constraint("Equal", 0, 2),
    Sketcher.Constraint("Equal", 2, 4),
    Sketcher.Constraint("Equal", 1, 5),
    Sketcher.Constraint("Equal", 4, 6),
    Sketcher.Constraint("Equal", 3, 7),
    Sketcher.Constraint("Equal", 6, 8),
    Sketcher.Constraint("Equal", 5, 9),
    Sketcher.Constraint("Equal", 8, 10),
    Sketcher.Constraint("Equal", 7, 11),
    Sketcher.Constraint("Equal", 10, 12),
    Sketcher.Constraint("Equal", 9, 13),
    Sketcher.Constraint("Equal", 12, 14),
    Sketcher.Constraint("Equal", 11, 15),
    Sketcher.Constraint("Equal", 14, 16),
    Sketcher.Constraint("Equal", 13, 17),
    Sketcher.Constraint("Equal", 16, 18),
    Sketcher.Constraint("Equal", 15, 19),
    Sketcher.Constraint("Equal", 18, 20),
    Sketcher.Constraint("Equal", 17, 21),
    Sketcher.Constraint("Equal", 20, 22),
    Sketcher.Constraint("Equal", 19, 23),
    Sketcher.Constraint("Equal", 22, 24),
    Sketcher.Constraint("Equal", 21, 25),
    Sketcher.Constraint("Equal", 24, 26),
    Sketcher.Constraint("Equal", 23, 27),
    Sketcher.Constraint("Equal", 26, 28),
    Sketcher.Constraint("Equal", 25, 29),
    Sketcher.Constraint("Equal", 28, 30),
    Sketcher.Constraint("Equal", 27, 31),
    Sketcher.Constraint("Equal", 30, 32),
    Sketcher.Constraint("Equal", 29, 33),
    Sketcher.Constraint("Equal", 32, 34),
    Sketcher.Constraint("Equal", 31, 35),
    Sketcher.Constraint("Equal", 34, 36),
    Sketcher.Constraint("Equal", 33, 37),
    Sketcher.Constraint("Equal", 36, 38),
    Sketcher.Constraint("Equal", 35, 39),
    Sketcher.Constraint("Equal", 38, 40),
    Sketcher.Constraint("Equal", 37, 41),
    Sketcher.Constraint("Equal", 40, 42),
    Sketcher.Constraint("Equal", 39, 43),
    Sketcher.Constraint("Equal", 42, 44),
    Sketcher.Constraint("Equal", 41, 45),
    Sketcher.Constraint("Equal", 44, 46),
    Sketcher.Constraint("Equal", 43, 47),
    Sketcher.Constraint("Distance", 3, 0.100001),
    Sketcher.Constraint("DistanceX", 9, 2, -1, 1, 14.918699),
    Sketcher.Constraint("DistanceY", 11, 2, -1, 1, 0.5855),
    Sketcher.Constraint("DistanceX", -1, 1, 26, 2, 2.909199),
    Sketcher.Constraint("DistanceY", 2, 2, 1, 2, 8.074602),
    Sketcher.Constraint("DistanceX", 6, 2, 3, 2, 1.562701),
    Sketcher.Constraint("DistanceX", 4, 2, 6, 2, 4.336802),
    Sketcher.Constraint("DistanceY", 10, 2, 2, 2, 4.552601),
    Sketcher.Constraint("DistanceX", 6, 2, 15, 2, 0.545199),
    Sketcher.Constraint("DistanceX", 11, 2, 19, 2, 2.9899),
    Sketcher.Constraint("DistanceX", 14, 2, 22, 2, 4.552601),
    Sketcher.Constraint("Distance", 17, 7.667872),
    Sketcher.Constraint("DistanceX", 2, 2, -1, 1, 2.909112),
])
sketch2.setExpression("Constraints[131]", "Params.sketch2_length")
pad2 = body2.newObject("PartDesign::Pad", "Pad001")
pad2.Profile = sketch2
pad2.setExpression("Length", "Params.pad2_length")
body3 = doc.addObject("PartDesign::Body", "Body002")

# Sketch on XZ plane
sketch3 = body3.newObject("Sketcher::SketchObject", "Sketch002")
sketch3.AttachmentSupport = (doc.getObject("XZ_Plane002"), [""])
sketch3.MapMode = "FlatFace"
sketch3.addGeometry([
    Part.LineSegment(App.Vector(-5, -0.05, 0), App.Vector(-15, -0.05, 0)),  # 0
    Part.LineSegment(App.Vector(-15, -0.05, 0), App.Vector(-15, -5.05, 0)),  # 1
    Part.LineSegment(App.Vector(-15, -5.05, 0), App.Vector(5.05, -5.05, 0)),  # 2
    Part.LineSegment(App.Vector(5.05, -5.05, 0), App.Vector(5.05, 15, 0)),  # 3
    Part.LineSegment(App.Vector(5.05, 15, 0), App.Vector(0.05, 15, 0)),  # 4
    Part.LineSegment(App.Vector(0.05, 15, 0), App.Vector(0.05, 5, 0)),  # 5
    Part.LineSegment(App.Vector(0.05, 5, 0), App.Vector(-0.05, 5, 0)),  # 6
    Part.LineSegment(App.Vector(-0.05, 5, 0), App.Vector(-0.05, 15, 0)),  # 7
    Part.LineSegment(App.Vector(-0.05, 15, 0), App.Vector(-7.46, 13.02, 0)),  # 8
    Part.LineSegment(App.Vector(-7.46, 13.02, 0), App.Vector(-2.46, 4.35, 0)),  # 9
    Part.LineSegment(App.Vector(-2.46, 4.35, 0), App.Vector(-2.54, 4.3, 0)),  # 10
    Part.LineSegment(App.Vector(-2.54, 4.3, 0), App.Vector(-7.54, 12.97, 0)),  # 11
    Part.LineSegment(App.Vector(-7.54, 12.97, 0), App.Vector(-12.97, 7.54, 0)),  # 12
    Part.LineSegment(App.Vector(-12.97, 7.54, 0), App.Vector(-4.3, 2.54, 0)),  # 13
    Part.LineSegment(App.Vector(-4.3, 2.54, 0), App.Vector(-4.35, 2.46, 0)),  # 14
    Part.LineSegment(App.Vector(-4.35, 2.46, 0), App.Vector(-13.02, 7.46, 0)),  # 15
    Part.LineSegment(App.Vector(-13.02, 7.46, 0), App.Vector(-15, 0.05, 0)),  # 16
    Part.LineSegment(App.Vector(-15, 0.05, 0), App.Vector(-5, 0.05, 0)),  # 17
    Part.LineSegment(App.Vector(-5, 0.05, 0), App.Vector(-5, -0.05, 0)),  # 18
], False)
sketch3.addConstraint([
    Sketcher.Constraint("Coincident", 0, 2, 1, 1),
    Sketcher.Constraint("Coincident", 1, 2, 2, 1),
    Sketcher.Constraint("Coincident", 2, 2, 3, 1),
    Sketcher.Constraint("Coincident", 3, 2, 4, 1),
    Sketcher.Constraint("Coincident", 4, 2, 5, 1),
    Sketcher.Constraint("Coincident", 5, 2, 6, 1),
    Sketcher.Constraint("Coincident", 6, 2, 7, 1),
    Sketcher.Constraint("Coincident", 7, 2, 8, 1),
    Sketcher.Constraint("Coincident", 8, 2, 9, 1),
    Sketcher.Constraint("Coincident", 9, 2, 10, 1),
    Sketcher.Constraint("Coincident", 10, 2, 11, 1),
    Sketcher.Constraint("Coincident", 11, 2, 12, 1),
    Sketcher.Constraint("Coincident", 12, 2, 13, 1),
    Sketcher.Constraint("Coincident", 13, 2, 14, 1),
    Sketcher.Constraint("Coincident", 14, 2, 15, 1),
    Sketcher.Constraint("Coincident", 15, 2, 16, 1),
    Sketcher.Constraint("Coincident", 16, 2, 17, 1),
    Sketcher.Constraint("Coincident", 17, 2, 18, 1),
    Sketcher.Constraint("Coincident", 18, 2, 0, 1),
    Sketcher.Constraint("Horizontal", 0),
    Sketcher.Constraint("Vertical", 1),
    Sketcher.Constraint("Horizontal", 2),
    Sketcher.Constraint("Vertical", 3),
    Sketcher.Constraint("Horizontal", 4),
    Sketcher.Constraint("Vertical", 5),
    Sketcher.Constraint("Horizontal", 6),
    Sketcher.Constraint("Vertical", 7),
    Sketcher.Constraint("Horizontal", 17),
    Sketcher.Constraint("Vertical", 18),
    Sketcher.Constraint("Symmetric", 4, 2, 7, 2, -2),
    Sketcher.Constraint("Symmetric", 0, 2, 16, 2, -1),
    Sketcher.Constraint("Parallel", 9, 11),
    Sketcher.Constraint("Parallel", 13, 15),
    Sketcher.Constraint("Equal", 4, 1),
    Sketcher.Constraint("Equal", 2, 3),
    Sketcher.Constraint("Equal", 17, 5),
    Sketcher.Constraint("Equal", 6, 18),
    Sketcher.Constraint("Equal", 9, 11),
    Sketcher.Constraint("Equal", 8, 12),
    Sketcher.Constraint("Equal", 11, 13),
    Sketcher.Constraint("Equal", 10, 14),
    Sketcher.Constraint("Equal", 13, 15),
    Sketcher.Constraint("Equal", 12, 16),
    Sketcher.Constraint("DistanceX", 4, 2, 4, 1, 5.0),
    Sketcher.Constraint("Angle", 8, Q("-164.999998 deg")),
    Sketcher.Constraint("Angle", 9, Q("-60.000001 deg")),
    Sketcher.Constraint("Angle", 12, Q("-135 deg")),
    Sketcher.Constraint("Angle", 13, Q("-30.000004 deg")),
    Sketcher.Constraint("Angle", 16, Q("-105.000002 deg")),
    Sketcher.Constraint("DistanceX", 6, 2, 6, 1, 0.1),
    Sketcher.Constraint("DistanceY", -1, 1, 5, 2, 5.0),
    Sketcher.Constraint("Distance", 10, 0.1),
    Sketcher.Constraint("DistanceY", 10, 2, 9, 2, 0.05),
    Sketcher.Constraint("DistanceY", 9, 2, 8, 2, 8.660398),
    Sketcher.Constraint("DistanceX", 0, 2, 0, 1, 9.999917),
])
sketch3.setExpression("Constraints[43]", "Params.sketch3_width")
sketch3.setExpression("Constraints[49]", "Params.sketch3_width2")
sketch3.setExpression("Constraints[51]", "Params.sketch3_length")
pad3 = body3.newObject("PartDesign::Pad", "Pad002")
pad3.Profile = sketch3
pad3.setExpression("Length", "Params.pad3_length")

doc.recompute()
